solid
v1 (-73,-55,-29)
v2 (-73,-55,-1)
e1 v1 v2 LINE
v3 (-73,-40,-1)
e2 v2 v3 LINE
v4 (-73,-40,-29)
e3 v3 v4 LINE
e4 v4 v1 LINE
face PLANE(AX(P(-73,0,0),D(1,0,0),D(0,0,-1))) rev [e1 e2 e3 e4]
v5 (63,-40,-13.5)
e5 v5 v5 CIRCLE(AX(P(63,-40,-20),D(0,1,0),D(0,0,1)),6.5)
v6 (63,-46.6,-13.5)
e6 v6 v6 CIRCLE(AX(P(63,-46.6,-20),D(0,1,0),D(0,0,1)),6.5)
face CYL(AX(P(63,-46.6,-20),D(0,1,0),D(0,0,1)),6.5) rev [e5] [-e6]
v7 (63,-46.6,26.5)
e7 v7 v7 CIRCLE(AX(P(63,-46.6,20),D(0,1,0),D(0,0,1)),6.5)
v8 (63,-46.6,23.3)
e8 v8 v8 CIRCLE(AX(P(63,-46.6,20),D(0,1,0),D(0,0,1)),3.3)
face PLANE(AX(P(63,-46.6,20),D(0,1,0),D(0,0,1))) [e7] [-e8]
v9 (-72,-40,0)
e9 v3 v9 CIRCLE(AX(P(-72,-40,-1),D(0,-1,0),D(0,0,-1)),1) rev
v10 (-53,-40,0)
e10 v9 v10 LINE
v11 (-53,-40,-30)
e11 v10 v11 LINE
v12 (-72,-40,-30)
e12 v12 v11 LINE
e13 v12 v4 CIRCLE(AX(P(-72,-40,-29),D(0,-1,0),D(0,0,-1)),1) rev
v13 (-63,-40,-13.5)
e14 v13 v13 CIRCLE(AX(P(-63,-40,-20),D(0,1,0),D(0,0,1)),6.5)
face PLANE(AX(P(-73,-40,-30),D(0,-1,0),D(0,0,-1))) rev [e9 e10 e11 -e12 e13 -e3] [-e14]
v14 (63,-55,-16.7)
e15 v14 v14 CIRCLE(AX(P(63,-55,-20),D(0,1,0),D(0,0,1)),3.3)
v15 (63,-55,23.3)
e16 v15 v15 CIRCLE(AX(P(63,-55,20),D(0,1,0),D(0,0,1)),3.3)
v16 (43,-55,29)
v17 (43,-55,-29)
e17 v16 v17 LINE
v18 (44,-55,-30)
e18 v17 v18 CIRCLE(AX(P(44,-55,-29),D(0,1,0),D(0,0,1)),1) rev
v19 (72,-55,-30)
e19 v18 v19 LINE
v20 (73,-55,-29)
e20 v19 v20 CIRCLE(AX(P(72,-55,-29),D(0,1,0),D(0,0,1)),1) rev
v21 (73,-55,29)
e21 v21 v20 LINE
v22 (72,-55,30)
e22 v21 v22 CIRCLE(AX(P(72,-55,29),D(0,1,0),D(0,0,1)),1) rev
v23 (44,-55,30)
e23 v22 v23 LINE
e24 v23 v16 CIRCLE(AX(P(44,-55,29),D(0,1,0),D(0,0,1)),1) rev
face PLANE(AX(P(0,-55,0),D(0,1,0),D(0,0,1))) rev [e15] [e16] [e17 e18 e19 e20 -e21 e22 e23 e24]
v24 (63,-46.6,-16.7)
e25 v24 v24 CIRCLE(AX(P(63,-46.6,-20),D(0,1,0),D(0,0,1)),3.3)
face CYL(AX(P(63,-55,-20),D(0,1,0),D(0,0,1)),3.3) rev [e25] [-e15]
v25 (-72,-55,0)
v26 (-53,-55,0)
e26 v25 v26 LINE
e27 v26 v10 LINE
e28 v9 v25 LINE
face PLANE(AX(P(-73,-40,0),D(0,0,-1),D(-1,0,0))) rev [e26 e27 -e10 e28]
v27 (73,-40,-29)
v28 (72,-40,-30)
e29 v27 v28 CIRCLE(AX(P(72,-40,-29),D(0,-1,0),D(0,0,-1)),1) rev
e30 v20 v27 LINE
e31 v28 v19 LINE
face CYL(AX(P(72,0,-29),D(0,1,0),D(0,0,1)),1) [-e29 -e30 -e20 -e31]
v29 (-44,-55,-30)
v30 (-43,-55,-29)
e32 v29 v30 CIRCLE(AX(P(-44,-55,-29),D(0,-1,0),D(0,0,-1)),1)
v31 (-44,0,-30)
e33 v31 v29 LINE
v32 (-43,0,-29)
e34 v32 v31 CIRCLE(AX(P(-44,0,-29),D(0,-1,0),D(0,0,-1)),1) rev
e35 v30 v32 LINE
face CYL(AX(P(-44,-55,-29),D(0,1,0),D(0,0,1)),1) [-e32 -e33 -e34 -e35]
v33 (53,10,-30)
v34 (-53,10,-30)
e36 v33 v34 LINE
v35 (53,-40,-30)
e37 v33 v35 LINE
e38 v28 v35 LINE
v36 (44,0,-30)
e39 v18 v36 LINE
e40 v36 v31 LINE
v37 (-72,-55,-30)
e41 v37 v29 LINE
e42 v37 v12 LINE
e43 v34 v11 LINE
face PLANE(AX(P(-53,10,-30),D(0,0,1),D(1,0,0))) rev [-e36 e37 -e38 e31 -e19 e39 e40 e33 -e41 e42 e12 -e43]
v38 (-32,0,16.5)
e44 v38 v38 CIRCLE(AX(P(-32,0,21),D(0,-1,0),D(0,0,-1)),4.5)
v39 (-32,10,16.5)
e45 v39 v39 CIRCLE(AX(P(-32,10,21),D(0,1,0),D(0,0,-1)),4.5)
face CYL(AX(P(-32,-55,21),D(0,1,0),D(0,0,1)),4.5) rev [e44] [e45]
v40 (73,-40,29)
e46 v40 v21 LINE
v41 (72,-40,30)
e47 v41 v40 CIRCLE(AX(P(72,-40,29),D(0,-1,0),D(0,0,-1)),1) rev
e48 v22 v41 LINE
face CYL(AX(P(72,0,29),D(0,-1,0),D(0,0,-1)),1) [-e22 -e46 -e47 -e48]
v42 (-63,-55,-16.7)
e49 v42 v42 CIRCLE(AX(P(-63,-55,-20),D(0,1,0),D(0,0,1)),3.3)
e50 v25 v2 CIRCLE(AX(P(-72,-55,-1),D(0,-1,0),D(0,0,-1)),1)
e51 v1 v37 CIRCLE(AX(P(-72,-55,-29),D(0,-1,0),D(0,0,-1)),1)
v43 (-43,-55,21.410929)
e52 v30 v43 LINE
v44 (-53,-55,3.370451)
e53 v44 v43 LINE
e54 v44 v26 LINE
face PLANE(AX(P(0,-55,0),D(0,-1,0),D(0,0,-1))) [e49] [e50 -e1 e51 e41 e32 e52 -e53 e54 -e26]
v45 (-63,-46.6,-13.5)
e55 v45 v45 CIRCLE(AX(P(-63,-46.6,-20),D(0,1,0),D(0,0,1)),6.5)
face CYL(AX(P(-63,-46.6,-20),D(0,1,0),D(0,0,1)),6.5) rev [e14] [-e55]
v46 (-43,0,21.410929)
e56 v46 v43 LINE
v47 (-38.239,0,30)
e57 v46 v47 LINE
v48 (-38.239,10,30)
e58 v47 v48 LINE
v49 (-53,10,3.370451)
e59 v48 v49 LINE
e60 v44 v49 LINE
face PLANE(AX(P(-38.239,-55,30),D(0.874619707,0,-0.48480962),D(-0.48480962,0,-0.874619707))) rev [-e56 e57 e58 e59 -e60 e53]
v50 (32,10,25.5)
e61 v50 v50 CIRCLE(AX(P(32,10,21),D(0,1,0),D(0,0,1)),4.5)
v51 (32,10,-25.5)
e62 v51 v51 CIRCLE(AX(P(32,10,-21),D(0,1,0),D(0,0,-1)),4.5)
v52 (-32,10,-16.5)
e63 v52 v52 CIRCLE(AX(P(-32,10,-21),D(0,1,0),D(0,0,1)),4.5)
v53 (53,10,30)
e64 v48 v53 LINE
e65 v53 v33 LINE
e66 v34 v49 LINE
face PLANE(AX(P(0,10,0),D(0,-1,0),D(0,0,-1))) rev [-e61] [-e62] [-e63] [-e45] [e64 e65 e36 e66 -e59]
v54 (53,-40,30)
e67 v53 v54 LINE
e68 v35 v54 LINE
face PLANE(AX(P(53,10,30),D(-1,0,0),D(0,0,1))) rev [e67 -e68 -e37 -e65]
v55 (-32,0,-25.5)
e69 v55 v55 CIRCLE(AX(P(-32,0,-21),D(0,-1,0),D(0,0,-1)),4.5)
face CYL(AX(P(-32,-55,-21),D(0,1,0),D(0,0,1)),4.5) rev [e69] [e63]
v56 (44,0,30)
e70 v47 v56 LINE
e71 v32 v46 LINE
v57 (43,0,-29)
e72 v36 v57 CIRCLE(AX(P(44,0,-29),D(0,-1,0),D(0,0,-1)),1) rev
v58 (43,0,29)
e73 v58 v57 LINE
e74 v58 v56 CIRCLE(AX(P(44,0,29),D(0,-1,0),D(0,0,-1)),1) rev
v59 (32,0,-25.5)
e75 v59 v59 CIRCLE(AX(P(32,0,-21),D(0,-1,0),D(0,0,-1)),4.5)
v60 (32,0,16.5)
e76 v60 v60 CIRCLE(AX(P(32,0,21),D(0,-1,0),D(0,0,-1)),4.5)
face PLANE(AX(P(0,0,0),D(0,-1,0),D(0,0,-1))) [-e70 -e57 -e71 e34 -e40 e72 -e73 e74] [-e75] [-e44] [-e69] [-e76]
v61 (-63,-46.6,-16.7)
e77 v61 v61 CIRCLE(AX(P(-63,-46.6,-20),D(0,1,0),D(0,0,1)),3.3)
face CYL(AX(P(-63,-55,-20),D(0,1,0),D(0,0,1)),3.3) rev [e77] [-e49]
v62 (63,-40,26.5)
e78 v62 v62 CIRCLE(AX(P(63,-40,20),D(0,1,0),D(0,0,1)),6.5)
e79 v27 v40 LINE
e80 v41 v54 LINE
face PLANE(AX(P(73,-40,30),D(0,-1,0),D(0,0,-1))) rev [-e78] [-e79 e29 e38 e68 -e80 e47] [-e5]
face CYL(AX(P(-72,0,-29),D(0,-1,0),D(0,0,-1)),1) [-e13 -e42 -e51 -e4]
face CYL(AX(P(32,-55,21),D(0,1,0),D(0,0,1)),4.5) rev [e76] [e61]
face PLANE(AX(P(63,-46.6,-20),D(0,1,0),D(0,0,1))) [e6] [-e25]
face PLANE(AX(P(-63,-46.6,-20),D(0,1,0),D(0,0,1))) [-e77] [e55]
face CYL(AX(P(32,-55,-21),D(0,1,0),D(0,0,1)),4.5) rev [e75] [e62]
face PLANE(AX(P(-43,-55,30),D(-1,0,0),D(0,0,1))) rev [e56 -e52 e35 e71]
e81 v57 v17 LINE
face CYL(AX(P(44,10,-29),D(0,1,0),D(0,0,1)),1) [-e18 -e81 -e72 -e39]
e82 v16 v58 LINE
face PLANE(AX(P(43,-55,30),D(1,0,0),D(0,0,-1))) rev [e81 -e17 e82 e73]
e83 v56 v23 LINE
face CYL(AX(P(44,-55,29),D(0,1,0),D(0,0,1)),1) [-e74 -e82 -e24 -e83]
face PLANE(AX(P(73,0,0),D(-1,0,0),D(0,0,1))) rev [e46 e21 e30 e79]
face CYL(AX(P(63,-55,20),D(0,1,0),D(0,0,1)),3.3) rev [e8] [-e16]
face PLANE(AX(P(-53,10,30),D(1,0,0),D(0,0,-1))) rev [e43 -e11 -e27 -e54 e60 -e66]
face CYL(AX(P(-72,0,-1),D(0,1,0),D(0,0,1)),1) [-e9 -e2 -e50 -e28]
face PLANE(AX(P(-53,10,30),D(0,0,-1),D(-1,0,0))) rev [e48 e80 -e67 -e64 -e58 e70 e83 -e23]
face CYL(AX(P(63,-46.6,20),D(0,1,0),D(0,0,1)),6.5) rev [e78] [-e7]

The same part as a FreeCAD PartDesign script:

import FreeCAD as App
import Part
import Sketcher
from FreeCAD import Vector
Q = App.Units.Quantity


def edges_at(feature, points):
    """Names of the edges that pass closest to the given points."""
    edges = feature.Shape.Edges
    near = lambda p: min(range(len(edges)), key=lambda i: edges[i].distToShape(Part.Vertex(*p))[0])
    return sorted({f"Edge{near(p) + 1}" for p in points})

doc = App.newDocument("Part")
params = doc.addObject("Spreadsheet::Sheet", "Params")
for row, (alias, value) in enumerate([
    ("sketch1_width", "106 mm"),
    ("sketch1_height", "60 mm"),
    ("pad1_length", "10 mm"),
    ("sketch2_width", "10 mm"),
    ("sketch2_height", "60 mm"),
    ("pad2_length", "55 mm"),
    ("sketch3_width", "15 mm"),
    ("sketch3_height", "60 mm"),
    ("pad3_length", "20 mm"),
    ("sketch4_width", "15 mm"),
    ("sketch4_height", "30 mm"),
    ("pad4_length", "20 mm"),
    ("sketch5_diameter", "9 mm"),
    ("sketch6_diameter", "13 mm"),
    ("pocket2_length", "6.6 mm"),
    ("sketch7_diameter", "6.6 mm"),
    ("fillet_radius", "1 mm"),
], start=1):
    params.set(f"A{row}", alias)
    params.set(f"B{row}", "=" + value)
    params.setAlias(f"B{row}", alias)

body = doc.addObject("PartDesign::Body", "Body")

# Sketch on XZ plane
sketch1 = body.newObject("Sketcher::SketchObject", "Sketch")
sketch1.AttachmentSupport = (doc.getObject("XZ_Plane"), [""])
sketch1.MapMode = "FlatFace"
sketch1.addGeometry([
    Part.LineSegment(Vector(-53, -30, 0), Vector(-53, 30, 0)),
    Part.LineSegment(Vector(-53, 30, 0), Vector(53, 30, 0)),
    Part.LineSegment(Vector(53, 30, 0), Vector(53, -30, 0)),
    Part.LineSegment(Vector(53, -30, 0), Vector(-53, -30, 0)),
], False)
sketch1.addConstraint([
    Sketcher.Constraint("Coincident", 0, 2, 1, 1),
    Sketcher.Constraint("Coincident", 1, 2, 2, 1),
    Sketcher.Constraint("Coincident", 2, 2, 3, 1),
    Sketcher.Constraint("Coincident", 3, 2, 0, 1),
    Sketcher.Constraint("Vertical", 0),
    Sketcher.Constraint("Horizontal", 1),
    Sketcher.Constraint("Vertical", 2),
    Sketcher.Constraint("Horizontal", 3),
    Sketcher.Constraint("Symmetric", 0, 2, 2, 2, -1, 1),
    Sketcher.Constraint("DistanceX", 1, 1, 1, 2, Q("106 mm")),
    Sketcher.Constraint("DistanceY", 0, 1, 0, 2, Q("60 mm")),
])
sketch1.setExpression("Constraints[9]", "Params.sketch1_width")
sketch1.setExpression("Constraints[10]", "Params.sketch1_height")
pad1 = body.newObject("PartDesign::Pad", "Pad")
pad1.Profile = sketch1
pad1.setExpression("Length", "Params.pad1_length")
pad1.Reversed = True

# Sketch on XZ plane
sketch2 = body.newObject("Sketcher::SketchObject", "Sketch001")
sketch2.AttachmentSupport = (doc.getObject("XZ_Plane"), [""])
sketch2.MapMode = "FlatFace"
sketch2.addGeometry([
    Part.LineSegment(Vector(-53, 30, 0), Vector(-53, -30, 0)),  # 0
    Part.LineSegment(Vector(-53, -30, 0), Vector(-43, -30, 0)),  # 1
    Part.LineSegment(Vector(-43, -30, 0), Vector(-43, 30, 0)),  # 2
    Part.LineSegment(Vector(-43, 30, 0), Vector(-53, 30, 0)),  # 3
    Part.LineSegment(Vector(43, 30, 0), Vector(43, -30, 0)),  # 4
    Part.LineSegment(Vector(43, -30, 0), Vector(53, -30, 0)),  # 5
    Part.LineSegment(Vector(53, -30, 0), Vector(53, 30, 0)),  # 6
    Part.LineSegment(Vector(53, 30, 0), Vector(43, 30, 0)),  # 7
], False)
sketch2.addConstraint([
    Sketcher.Constraint("Coincident", 0, 2, 1, 1),
    Sketcher.Constraint("Coincident", 1, 2, 2, 1),
    Sketcher.Constraint("Coincident", 2, 2, 3, 1),
    Sketcher.Constraint("Coincident", 3, 2, 0, 1),
    Sketcher.Constraint("Coincident", 4, 2, 5, 1),
    Sketcher.Constraint("Coincident", 5, 2, 6, 1),
    Sketcher.Constraint("Coincident", 6, 2, 7, 1),
    Sketcher.Constraint("Coincident", 7, 2, 4, 1),
    Sketcher.Constraint("Vertical", 0),
    Sketcher.Constraint("Horizontal", 1),
    Sketcher.Constraint("Vertical", 2),
    Sketcher.Constraint("Horizontal", 3),
    Sketcher.Constraint("Vertical", 4),
    Sketcher.Constraint("Horizontal", 5),
    Sketcher.Constraint("Vertical", 6),
    Sketcher.Constraint("Horizontal", 7),
    Sketcher.Constraint("Symmetric", 2, 2, 4, 2, -1, 1),
    Sketcher.Constraint("Symmetric", 0, 2, 6, 2, -1, 1),
    Sketcher.Constraint("Horizontal", 1, 2, 4, 2),
    Sketcher.Constraint("DistanceX", 1, 1, 1, 2, Q("10 mm")),
    Sketcher.Constraint("DistanceY", 0, 2, 0, 1, Q("60 mm")),
    Sketcher.Constraint("DistanceX", 0, 2, -1, 1, Q("53 mm")),
])
sketch2.setExpression("Constraints[19]", "Params.sketch2_width")
sketch2.setExpression("Constraints[20]", "Params.sketch2_height")
pad2 = body.newObject("PartDesign::Pad", "Pad001")
pad2.Profile = sketch2
pad2.setExpression("Length", "Params.pad2_length")

# Sketch on YZ plane
sketch3 = body.newObject("Sketcher::SketchObject", "Sketch002")
sketch3.AttachmentSupport = (doc.getObject("YZ_Plane"), [""])
sketch3.MapMode = "FlatFace"
sketch3.AttachmentOffset = App.Placement(Vector(0, 0, 53), App.Rotation())
sketch3.addGeometry([
    Part.LineSegment(Vector(-40, 30, 0), Vector(-55, 30, 0)),
    Part.LineSegment(Vector(-55, 30, 0), Vector(-55, -30, 0)),
    Part.LineSegment(Vector(-55, -30, 0), Vector(-40, -30, 0)),
    Part.LineSegment(Vector(-40, -30, 0), Vector(-40, 30, 0)),
], False)
sketch3.addConstraint([
    Sketcher.Constraint("Coincident", 0, 2, 1, 1),
    Sketcher.Constraint("Coincident", 1, 2, 2, 1),
    Sketcher.Constraint("Coincident", 2, 2, 3, 1),
    Sketcher.Constraint("Coincident", 3, 2, 0, 1),
    Sketcher.Constraint("Horizontal", 0),
    Sketcher.Constraint("Vertical", 1),
    Sketcher.Constraint("Horizontal", 2),
    Sketcher.Constraint("Vertical", 3),
    Sketcher.Constraint("DistanceX", 0, 2, 0, 1, Q("15 mm")),
    Sketcher.Constraint("DistanceY", 1, 2, 1, 1, Q("60 mm")),
    Sketcher.Constraint("DistanceX", 0, 2, -1, 1, Q("55 mm")),
    Sketcher.Constraint("DistanceY", -1, 1, 0, 2, Q("30 mm")),
])
sketch3.setExpression("Constraints[8]", "Params.sketch3_width")
sketch3.setExpression("Constraints[9]", "Params.sketch3_height")
pad3 = body.newObject("PartDesign::Pad", "Pad002")
pad3.Profile = sketch3
pad3.setExpression("Length", "Params.pad3_length")

# Sketch on YZ plane
sketch4 = body.newObject("Sketcher::SketchObject", "Sketch003")
sketch4.AttachmentSupport = (doc.getObject("YZ_Plane"), [""])
sketch4.MapMode = "FlatFace"
sketch4.AttachmentOffset = App.Placement(Vector(0, 0, -53), App.Rotation())
sketch4.addGeometry([
    Part.LineSegment(Vector(-40, -30, 0), Vector(-55, -30, 0)),
    Part.LineSegment(Vector(-55, -30, 0), Vector(-55, 0, 0)),
    Part.LineSegment(Vector(-55, 0, 0), Vector(-40, 0, 0)),
    Part.LineSegment(Vector(-40, 0, 0), Vector(-40, -30, 0)),
], False)
sketch4.addConstraint([
    Sketcher.Constraint("Coincident", 0, 2, 1, 1),
    Sketcher.Constraint("Coincident", 1, 2, 2, 1),
    Sketcher.Constraint("Coincident", 2, 2, 3, 1),
    Sketcher.Constraint("Coincident", 3, 2, 0, 1),
    Sketcher.Constraint("Horizontal", 0),
    Sketcher.Constraint("Vertical", 1),
    Sketcher.Constraint("Horizontal", 2),
    Sketcher.Constraint("Vertical", 3),
    Sketcher.Constraint("PointOnObject", 1, 2, -1),
    Sketcher.Constraint("DistanceX", 0, 2, 0, 1, Q("15 mm")),
    Sketcher.Constraint("DistanceY", 1, 1, 1, 2, Q("30 mm")),
    Sketcher.Constraint("DistanceX", 0, 2, -1, 1, Q("55 mm")),
])
sketch4.setExpression("Constraints[9]", "Params.sketch4_width")
sketch4.setExpression("Constraints[10]", "Params.sketch4_height")
pad4 = body.newObject("PartDesign::Pad", "Pad003")
pad4.Profile = sketch4
pad4.setExpression("Length", "Params.pad4_length")
pad4.Reversed = True

# Sketch on XZ plane
sketch5 = body.newObject("Sketcher::SketchObject", "Sketch004")
sketch5.AttachmentSupport = (doc.getObject("XZ_Plane"), [""])
sketch5.MapMode = "FlatFace"
sketch5.AttachmentOffset = App.Placement(Vector(0, 0, -10), App.Rotation())
sketch5.addGeometry([
    Part.Circle(Vector(-32, -21, 0), Vector(0, 0, 1), 4.5),
    Part.Circle(Vector(32, -21, 0), Vector(0, 0, 1), 4.5),
    Part.Circle(Vector(32, 21, 0), Vector(0, 0, 1), 4.5),
    Part.Circle(Vector(-32, 21, 0), Vector(0, 0, 1), 4.5),
], False)
sketch5.addConstraint([
    Sketcher.Constraint("Equal", 0, 1),
    Sketcher.Constraint("Equal", 1, 2),
    Sketcher.Constraint("Equal", 2, 3),
    Sketcher.Constraint("Symmetric", 0, 3, 2, 3, -1, 1),
    Sketcher.Constraint("Symmetric", 1, 3, 3, 3, -1, 1),
    Sketcher.Constraint("Symmetric", 0, 3, 1, 3, -2),
    Sketcher.Constraint("Diameter", 0, Q("9 mm")),
    Sketcher.Constraint("DistanceX", 0, 3, -1, 1, Q("32 mm")),
    Sketcher.Constraint("DistanceY", 0, 3, -1, 1, Q("21 mm")),
])
sketch5.setExpression("Constraints[6]", "Params.sketch5_diameter")
pocket1 = body.newObject("PartDesign::Pocket", "Pocket")
pocket1.Profile = sketch5
pocket1.Type = "ThroughAll"
pocket1.Reversed = True

# Sketch on XZ plane
sketch6 = body.newObject("Sketcher::SketchObject", "Sketch005")
sketch6.AttachmentSupport = (doc.getObject("XZ_Plane"), [""])
sketch6.MapMode = "FlatFace"
sketch6.AttachmentOffset = App.Placement(Vector(0, 0, 40), App.Rotation())
sketch6.addGeometry([
    Part.Circle(Vector(63, -20, 0), Vector(0, 0, 1), 6.5),
    Part.Circle(Vector(63, 20, 0), Vector(0, 0, 1), 6.5),
    Part.Circle(Vector(-63, -20, 0), Vector(0, 0, 1), 6.5),
], False)
sketch6.addConstraint([
    Sketcher.Constraint("Equal", 0, 1),
    Sketcher.Constraint("Equal", 1, 2),
    Sketcher.Constraint("Symmetric", 1, 3, 2, 3, -1, 1),
    Sketcher.Constraint("Symmetric", 0, 3, 2, 3, -2),
    Sketcher.Constraint("Diameter", 0, Q("13 mm")),
    Sketcher.Constraint("DistanceX", -1, 1, 0, 3, Q("63 mm")),
    Sketcher.Constraint("DistanceY", 0, 3, -1, 1, Q("20 mm")),
])
sketch6.setExpression("Constraints[4]", "Params.sketch6_diameter")
pocket2 = body.newObject("PartDesign::Pocket", "Pocket001")
pocket2.Profile = sketch6
pocket2.setExpression("Length", "Params.pocket2_length")
pocket2.Reversed = True

# Sketch on XZ plane
sketch7 = body.newObject("Sketcher::SketchObject", "Sketch006")
sketch7.AttachmentSupport = (doc.getObject("XZ_Plane"), [""])
sketch7.MapMode = "FlatFace"
sketch7.AttachmentOffset = App.Placement(Vector(0, 0, 46.6), App.Rotation())
sketch7.addGeometry([
    Part.Circle(Vector(-63, -20, 0), Vector(0, 0, 1), 3.3),
    Part.Circle(Vector(63, 20, 0), Vector(0, 0, 1), 3.3),
    Part.Circle(Vector(63, -20, 0), Vector(0, 0, 1), 3.3),
], False)
sketch7.addConstraint([
    Sketcher.Constraint("Equal", 0, 1),
    Sketcher.Constraint("Equal", 1, 2),
    Sketcher.Constraint("Symmetric", 0, 3, 1, 3, -1, 1),
    Sketcher.Constraint("Symmetric", 0, 3, 2, 3, -2),
    Sketcher.Constraint("Diameter", 0, Q("6.6 mm")),
    Sketcher.Constraint("DistanceX", 0, 3, -1, 1, Q("63 mm")),
    Sketcher.Constraint("DistanceY", 0, 3, -1, 1, Q("20 mm")),
])
sketch7.setExpression("Constraints[4]", "Params.sketch7_diameter")
pocket3 = body.newObject("PartDesign::Pocket", "Pocket002")
pocket3.Profile = sketch7
pocket3.Type = "ThroughAll"
pocket3.Reversed = True

# Sketch on XZ plane
sketch8 = body.newObject("Sketcher::SketchObject", "Sketch007")
sketch8.AttachmentSupport = (doc.getObject("XZ_Plane"), [""])
sketch8.MapMode = "FlatFace"
sketch8.AttachmentOffset = App.Placement(Vector(0, 0, -10), App.Rotation())
sketch8.addGeometry([
    Part.LineSegment(Vector(-38.239, 30, 0), Vector(-53, 3.370451, 0)),
    Part.LineSegment(Vector(-53, 3.370451, 0), Vector(-53, 30, 0)),
    Part.LineSegment(Vector(-53, 30, 0), Vector(-38.239, 30, 0)),
], False)
sketch8.addConstraint([
    Sketcher.Constraint("Coincident", 0, 2, 1, 1),
    Sketcher.Constraint("Coincident", 1, 2, 2, 1),
    Sketcher.Constraint("Coincident", 2, 2, 0, 1),
    Sketcher.Constraint("Vertical", 1),
    Sketcher.Constraint("Horizontal", 2),
    Sketcher.Constraint("Angle", 0, Q("-119 deg")),
    Sketcher.Constraint("DistanceX", 0, 2, -1, 1, Q("53 mm")),
    Sketcher.Constraint("DistanceY", -1, 1, 1, 2, Q("30 mm")),
    Sketcher.Constraint("DistanceX", 2, 1, 2, 2, Q("14.761 mm")),
])
pocket4 = body.newObject("PartDesign::Pocket", "Pocket003")
pocket4.Profile = sketch8
pocket4.Type = "ThroughAll"
pocket4.Reversed = True
doc.recompute()

fillet = body.newObject("PartDesign::Fillet", "Fillet")
fillet.Base = (pocket4, edges_at(pocket4, [
    (-43, -27.5, -30),
    (43, -27.5, 30),
    (43, -27.5, -30),
    (73, -47.5, 30),
    (73, -47.5, -30),
    (-73, -47.5, -30),
    (-73, -47.5, 0),
]))
fillet.setExpression("Radius", "Params.fillet_radius")

doc.recompute()
